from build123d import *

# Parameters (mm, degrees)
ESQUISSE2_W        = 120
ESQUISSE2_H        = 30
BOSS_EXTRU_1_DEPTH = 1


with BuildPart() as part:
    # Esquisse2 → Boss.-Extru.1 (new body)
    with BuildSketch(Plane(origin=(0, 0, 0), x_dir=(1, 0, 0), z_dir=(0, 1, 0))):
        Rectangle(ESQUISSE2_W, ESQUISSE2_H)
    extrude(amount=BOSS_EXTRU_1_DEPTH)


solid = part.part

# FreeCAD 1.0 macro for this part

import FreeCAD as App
import Part
import Sketcher


def add_polygon(sketch, points):
    """Adds a closed chain of lines whose ends are joined by coincident constraints."""
    first, n = sketch.GeometryCount, len(points)
    for a, b in zip(points, points[1:] + points[:1]):
        sketch.addGeometry(Part.LineSegment(App.Vector(*a, 0), App.Vector(*b, 0)), False)
    for i in range(n):
        sketch.addConstraint(Sketcher.Constraint("Coincident", first + i, 2, first + (i + 1) % n, 1))

doc = App.newDocument("Part")
body = doc.addObject("PartDesign::Body", "Body")

# Sketch on XZ plane
sketch1 = body.newObject("Sketcher::SketchObject", "Sketch")
sketch1.AttachmentSupport = (doc.getObject("XZ_Plane"), [""])
sketch1.MapMode = "FlatFace"
add_polygon(sketch1, [(-60, -15), (-60, 15), (60, 15), (60, -15)])  # lines 0-3
sketch1.addConstraint(Sketcher.Constraint("Vertical", 0))
sketch1.addConstraint(Sketcher.Constraint("Horizontal", 1))
sketch1.addConstraint(Sketcher.Constraint("Vertical", 2))
sketch1.addConstraint(Sketcher.Constraint("Horizontal", 3))
sketch1.addConstraint(Sketcher.Constraint("Symmetric", 0, 2, 2, 2, -1, 1))
sketch1.addConstraint(Sketcher.Constraint("DistanceX", 1, 1, 1, 2, 120.0))
sketch1.addConstraint(Sketcher.Constraint("DistanceY", 0, 1, 0, 2, 30.0))
pad1 = body.newObject("PartDesign::Pad", "Pad")
pad1.Profile = sketch1
pad1.Length = 1
pad1.Reversed = True

doc.recompute()
